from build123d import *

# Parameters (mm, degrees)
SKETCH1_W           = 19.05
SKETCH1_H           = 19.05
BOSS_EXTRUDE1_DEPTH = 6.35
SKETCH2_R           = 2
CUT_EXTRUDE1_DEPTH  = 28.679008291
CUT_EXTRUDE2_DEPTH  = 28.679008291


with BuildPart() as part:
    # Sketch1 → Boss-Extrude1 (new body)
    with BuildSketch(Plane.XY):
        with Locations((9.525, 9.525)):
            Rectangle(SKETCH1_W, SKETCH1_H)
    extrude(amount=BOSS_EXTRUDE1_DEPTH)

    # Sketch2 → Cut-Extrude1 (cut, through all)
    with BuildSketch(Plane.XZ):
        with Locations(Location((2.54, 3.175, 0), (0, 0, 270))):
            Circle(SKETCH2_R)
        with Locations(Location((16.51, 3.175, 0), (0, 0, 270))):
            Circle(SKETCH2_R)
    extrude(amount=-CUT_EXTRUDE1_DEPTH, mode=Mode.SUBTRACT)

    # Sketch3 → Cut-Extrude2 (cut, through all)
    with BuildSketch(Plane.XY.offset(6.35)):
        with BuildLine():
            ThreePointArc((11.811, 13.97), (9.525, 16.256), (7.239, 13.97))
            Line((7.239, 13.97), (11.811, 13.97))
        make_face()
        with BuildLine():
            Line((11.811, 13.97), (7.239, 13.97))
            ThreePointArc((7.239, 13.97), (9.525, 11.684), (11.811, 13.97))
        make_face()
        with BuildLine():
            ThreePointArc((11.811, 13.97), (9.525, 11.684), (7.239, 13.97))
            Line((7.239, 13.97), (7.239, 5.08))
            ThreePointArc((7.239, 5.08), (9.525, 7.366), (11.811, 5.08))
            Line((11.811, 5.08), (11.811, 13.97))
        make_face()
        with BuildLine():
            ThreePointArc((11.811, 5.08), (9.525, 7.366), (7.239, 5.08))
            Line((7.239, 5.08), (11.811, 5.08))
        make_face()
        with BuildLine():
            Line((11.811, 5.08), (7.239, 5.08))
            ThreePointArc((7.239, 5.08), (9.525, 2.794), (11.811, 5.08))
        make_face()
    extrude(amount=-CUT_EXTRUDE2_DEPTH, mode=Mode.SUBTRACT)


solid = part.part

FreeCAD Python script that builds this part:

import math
import FreeCAD as App
import Part
import Sketcher
Q = App.Units.Quantity

doc = App.newDocument("Part")
body = doc.addObject("PartDesign::Body", "Body")

# Sketch on XY plane
sketch1 = body.newObject("Sketcher::SketchObject", "Sketch")
sketch1.AttachmentSupport = (doc.getObject("XY_Plane"), [""])
sketch1.MapMode = "FlatFace"
sketch1.addGeometry(Part.LineSegment(App.Vector(0, 19, 0), App.Vector(0, 0, 0)), False)
sketch1.addGeometry(Part.LineSegment(App.Vector(0, 0, 0), App.Vector(19, 0, 0)), False)
sketch1.addGeometry(Part.LineSegment(App.Vector(19, 0, 0), App.Vector(19, 19, 0)), False)
sketch1.addGeometry(Part.LineSegment(App.Vector(19, 19, 0), App.Vector(0, 19, 0)), False)
sketch1.addConstraint(Sketcher.Constraint("Coincident", 0, 2, 1, 1))
sketch1.addConstraint(Sketcher.Constraint("Coincident", 1, 2, 2, 1))
sketch1.addConstraint(Sketcher.Constraint("Coincident", 2, 2, 3, 1))
sketch1.addConstraint(Sketcher.Constraint("Coincident", 3, 2, 0, 1))
sketch1.addConstraint(Sketcher.Constraint("Vertical", 0))
sketch1.addConstraint(Sketcher.Constraint("Horizontal", 1))
sketch1.addConstraint(Sketcher.Constraint("Vertical", 2))
sketch1.addConstraint(Sketcher.Constraint("Horizontal", 3))
sketch1.addConstraint(Sketcher.Constraint("Coincident", 0, 2, -1, 1))
sketch1.addConstraint(Sketcher.Constraint("Equal", 3, 0))
sketch1.addConstraint(Sketcher.Constraint("DistanceX", 1, 1, 1, 2, Q("0.75 in")))
pad1 = body.newObject("PartDesign::Pad", "Pad")
pad1.Profile = sketch1
pad1.Length = Q("0.25 in")

# Sketch on XZ plane
sketch2 = body.newObject("Sketcher::SketchObject", "Sketch001")
sketch2.AttachmentSupport = (doc.getObject("XZ_Plane"), [""])
sketch2.MapMode = "FlatFace"
sketch2.addGeometry(Part.Circle(App.Vector(2.5, 3.2, 0), App.Vector(0, 0, 1), 2), False)
sketch2.addGeometry(Part.Circle(App.Vector(16.5, 3.2, 0), App.Vector(0, 0, 1), 2), False)
sketch2.addConstraint(Sketcher.Constraint("Equal", 0, 1))
sketch2.addConstraint(Sketcher.Constraint("Horizontal", 0, 3, 1, 3))
sketch2.addConstraint(Sketcher.Constraint("DistanceX", -1, 1, 0, 3, Q("0.1 in")))
sketch2.addConstraint(Sketcher.Constraint("Diameter", 0, Q("4 mm")))
sketch2.addConstraint(Sketcher.Constraint("DistanceX", -1, 1, 1, 3, Q("0.65 in")))
sketch2.addConstraint(Sketcher.Constraint("DistanceY", -1, 1, 0, 3, Q("0.125 in")))
pocket1 = body.newObject("PartDesign::Pocket", "Pocket")
pocket1.Profile = sketch2
pocket1.Type = "ThroughAll"

# Sketch on XY plane
sketch3 = body.newObject("Sketcher::SketchObject", "Sketch002")
sketch3.AttachmentSupport = (doc.getObject("XY_Plane"), [""])
sketch3.MapMode = "FlatFace"
sketch3.AttachmentOffset = App.Placement(App.Vector(0, 0, 0.25 * 25.4), App.Rotation())
sketch3.addGeometry(Part.LineSegment(App.Vector(7.2, 14, 0), App.Vector(7.2, 5.1, 0)), False)
sketch3.addGeometry(Part.ArcOfCircle(Part.Circle(App.Vector(9.5, 5.1, 0), App.Vector(0, 0, 1), 2.3), math.radians(180), math.radians(360)), False)
sketch3.addGeometry(Part.LineSegment(App.Vector(11.8, 5.1, 0), App.Vector(11.8, 14, 0)), False)
sketch3.addGeometry(Part.ArcOfCircle(Part.Circle(App.Vector(9.5, 14, 0), App.Vector(0, 0, 1), 2.3), math.radians(0), math.radians(180)), False)
sketch3.addConstraint(Sketcher.Constraint("Tangent", 0, 2, 1, 1))
sketch3.addConstraint(Sketcher.Constraint("Tangent", 1, 2, 2, 1))
sketch3.addConstraint(Sketcher.Constraint("Tangent", 2, 2, 3, 1))
sketch3.addConstraint(Sketcher.Constraint("Tangent", 3, 2, 0, 1))
sketch3.addConstraint(Sketcher.Constraint("Vertical", 0))
sketch3.addConstraint(Sketcher.Constraint("Vertical", 2))
sketch3.addConstraint(Sketcher.Constraint("Radius", 1, Q("0.09 in")))
sketch3.addConstraint(Sketcher.Constraint("DistanceY", 0, 2, 0, 1, Q("0.35 in")))
sketch3.addConstraint(Sketcher.Constraint("DistanceY", -1, 1, 1, 3, Q("0.2 in")))
sketch3.addConstraint(Sketcher.Constraint("DistanceX", -1, 1, 1, 3, Q("0.375 in")))
pocket2 = body.newObject("PartDesign::Pocket", "Pocket001")
pocket2.Profile = sketch3
pocket2.Type = "ThroughAll"

doc.recompute()
